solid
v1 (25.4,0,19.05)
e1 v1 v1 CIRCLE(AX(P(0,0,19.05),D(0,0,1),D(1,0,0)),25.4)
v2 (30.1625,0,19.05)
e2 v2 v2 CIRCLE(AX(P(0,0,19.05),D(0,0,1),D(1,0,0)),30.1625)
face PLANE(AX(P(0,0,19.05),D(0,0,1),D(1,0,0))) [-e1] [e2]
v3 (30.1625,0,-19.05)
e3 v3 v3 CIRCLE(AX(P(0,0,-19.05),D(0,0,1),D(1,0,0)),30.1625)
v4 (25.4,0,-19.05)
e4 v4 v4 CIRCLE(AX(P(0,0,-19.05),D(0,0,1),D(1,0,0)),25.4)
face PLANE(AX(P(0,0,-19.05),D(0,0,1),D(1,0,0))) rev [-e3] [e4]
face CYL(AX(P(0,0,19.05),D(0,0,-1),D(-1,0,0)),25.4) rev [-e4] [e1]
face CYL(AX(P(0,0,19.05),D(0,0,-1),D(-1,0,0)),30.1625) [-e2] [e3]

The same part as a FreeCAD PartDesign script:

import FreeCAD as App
import Part
import Sketcher

V = App.Vector
Q = App.Units.Quantity

doc = App.newDocument("Part")
body = doc.addObject("PartDesign::Body", "Body")

# Sketch on XY plane
sketch1 = body.newObject("Sketcher::SketchObject", "Sketch")
sketch1.AttachmentSupport = (doc.getObject("XY_Plane"), [""])
sketch1.MapMode = "FlatFace"
sketch1.addGeometry(Part.Circle(V(0, 0, 0), V(0, 0, 1), 30), False)
sketch1.addGeometry(Part.Circle(V(0, 0, 0), V(0, 0, 1), 25), False)
sketch1.addConstraint(Sketcher.Constraint("Coincident", 0, 3, -1, 1))
sketch1.addConstraint(Sketcher.Constraint("Coincident", 1, 3, -1, 1))
sketch1.addConstraint(Sketcher.Constraint("Diameter", 1, Q("2 in")))
sketch1.addConstraint(Sketcher.Constraint("Diameter", 0, Q("2.375 in")))
pad1 = body.newObject("PartDesign::Pad", "Pad")
pad1.Profile = sketch1
pad1.Length = Q("1.5 in")
pad1.Midplane = True

doc.recompute()
